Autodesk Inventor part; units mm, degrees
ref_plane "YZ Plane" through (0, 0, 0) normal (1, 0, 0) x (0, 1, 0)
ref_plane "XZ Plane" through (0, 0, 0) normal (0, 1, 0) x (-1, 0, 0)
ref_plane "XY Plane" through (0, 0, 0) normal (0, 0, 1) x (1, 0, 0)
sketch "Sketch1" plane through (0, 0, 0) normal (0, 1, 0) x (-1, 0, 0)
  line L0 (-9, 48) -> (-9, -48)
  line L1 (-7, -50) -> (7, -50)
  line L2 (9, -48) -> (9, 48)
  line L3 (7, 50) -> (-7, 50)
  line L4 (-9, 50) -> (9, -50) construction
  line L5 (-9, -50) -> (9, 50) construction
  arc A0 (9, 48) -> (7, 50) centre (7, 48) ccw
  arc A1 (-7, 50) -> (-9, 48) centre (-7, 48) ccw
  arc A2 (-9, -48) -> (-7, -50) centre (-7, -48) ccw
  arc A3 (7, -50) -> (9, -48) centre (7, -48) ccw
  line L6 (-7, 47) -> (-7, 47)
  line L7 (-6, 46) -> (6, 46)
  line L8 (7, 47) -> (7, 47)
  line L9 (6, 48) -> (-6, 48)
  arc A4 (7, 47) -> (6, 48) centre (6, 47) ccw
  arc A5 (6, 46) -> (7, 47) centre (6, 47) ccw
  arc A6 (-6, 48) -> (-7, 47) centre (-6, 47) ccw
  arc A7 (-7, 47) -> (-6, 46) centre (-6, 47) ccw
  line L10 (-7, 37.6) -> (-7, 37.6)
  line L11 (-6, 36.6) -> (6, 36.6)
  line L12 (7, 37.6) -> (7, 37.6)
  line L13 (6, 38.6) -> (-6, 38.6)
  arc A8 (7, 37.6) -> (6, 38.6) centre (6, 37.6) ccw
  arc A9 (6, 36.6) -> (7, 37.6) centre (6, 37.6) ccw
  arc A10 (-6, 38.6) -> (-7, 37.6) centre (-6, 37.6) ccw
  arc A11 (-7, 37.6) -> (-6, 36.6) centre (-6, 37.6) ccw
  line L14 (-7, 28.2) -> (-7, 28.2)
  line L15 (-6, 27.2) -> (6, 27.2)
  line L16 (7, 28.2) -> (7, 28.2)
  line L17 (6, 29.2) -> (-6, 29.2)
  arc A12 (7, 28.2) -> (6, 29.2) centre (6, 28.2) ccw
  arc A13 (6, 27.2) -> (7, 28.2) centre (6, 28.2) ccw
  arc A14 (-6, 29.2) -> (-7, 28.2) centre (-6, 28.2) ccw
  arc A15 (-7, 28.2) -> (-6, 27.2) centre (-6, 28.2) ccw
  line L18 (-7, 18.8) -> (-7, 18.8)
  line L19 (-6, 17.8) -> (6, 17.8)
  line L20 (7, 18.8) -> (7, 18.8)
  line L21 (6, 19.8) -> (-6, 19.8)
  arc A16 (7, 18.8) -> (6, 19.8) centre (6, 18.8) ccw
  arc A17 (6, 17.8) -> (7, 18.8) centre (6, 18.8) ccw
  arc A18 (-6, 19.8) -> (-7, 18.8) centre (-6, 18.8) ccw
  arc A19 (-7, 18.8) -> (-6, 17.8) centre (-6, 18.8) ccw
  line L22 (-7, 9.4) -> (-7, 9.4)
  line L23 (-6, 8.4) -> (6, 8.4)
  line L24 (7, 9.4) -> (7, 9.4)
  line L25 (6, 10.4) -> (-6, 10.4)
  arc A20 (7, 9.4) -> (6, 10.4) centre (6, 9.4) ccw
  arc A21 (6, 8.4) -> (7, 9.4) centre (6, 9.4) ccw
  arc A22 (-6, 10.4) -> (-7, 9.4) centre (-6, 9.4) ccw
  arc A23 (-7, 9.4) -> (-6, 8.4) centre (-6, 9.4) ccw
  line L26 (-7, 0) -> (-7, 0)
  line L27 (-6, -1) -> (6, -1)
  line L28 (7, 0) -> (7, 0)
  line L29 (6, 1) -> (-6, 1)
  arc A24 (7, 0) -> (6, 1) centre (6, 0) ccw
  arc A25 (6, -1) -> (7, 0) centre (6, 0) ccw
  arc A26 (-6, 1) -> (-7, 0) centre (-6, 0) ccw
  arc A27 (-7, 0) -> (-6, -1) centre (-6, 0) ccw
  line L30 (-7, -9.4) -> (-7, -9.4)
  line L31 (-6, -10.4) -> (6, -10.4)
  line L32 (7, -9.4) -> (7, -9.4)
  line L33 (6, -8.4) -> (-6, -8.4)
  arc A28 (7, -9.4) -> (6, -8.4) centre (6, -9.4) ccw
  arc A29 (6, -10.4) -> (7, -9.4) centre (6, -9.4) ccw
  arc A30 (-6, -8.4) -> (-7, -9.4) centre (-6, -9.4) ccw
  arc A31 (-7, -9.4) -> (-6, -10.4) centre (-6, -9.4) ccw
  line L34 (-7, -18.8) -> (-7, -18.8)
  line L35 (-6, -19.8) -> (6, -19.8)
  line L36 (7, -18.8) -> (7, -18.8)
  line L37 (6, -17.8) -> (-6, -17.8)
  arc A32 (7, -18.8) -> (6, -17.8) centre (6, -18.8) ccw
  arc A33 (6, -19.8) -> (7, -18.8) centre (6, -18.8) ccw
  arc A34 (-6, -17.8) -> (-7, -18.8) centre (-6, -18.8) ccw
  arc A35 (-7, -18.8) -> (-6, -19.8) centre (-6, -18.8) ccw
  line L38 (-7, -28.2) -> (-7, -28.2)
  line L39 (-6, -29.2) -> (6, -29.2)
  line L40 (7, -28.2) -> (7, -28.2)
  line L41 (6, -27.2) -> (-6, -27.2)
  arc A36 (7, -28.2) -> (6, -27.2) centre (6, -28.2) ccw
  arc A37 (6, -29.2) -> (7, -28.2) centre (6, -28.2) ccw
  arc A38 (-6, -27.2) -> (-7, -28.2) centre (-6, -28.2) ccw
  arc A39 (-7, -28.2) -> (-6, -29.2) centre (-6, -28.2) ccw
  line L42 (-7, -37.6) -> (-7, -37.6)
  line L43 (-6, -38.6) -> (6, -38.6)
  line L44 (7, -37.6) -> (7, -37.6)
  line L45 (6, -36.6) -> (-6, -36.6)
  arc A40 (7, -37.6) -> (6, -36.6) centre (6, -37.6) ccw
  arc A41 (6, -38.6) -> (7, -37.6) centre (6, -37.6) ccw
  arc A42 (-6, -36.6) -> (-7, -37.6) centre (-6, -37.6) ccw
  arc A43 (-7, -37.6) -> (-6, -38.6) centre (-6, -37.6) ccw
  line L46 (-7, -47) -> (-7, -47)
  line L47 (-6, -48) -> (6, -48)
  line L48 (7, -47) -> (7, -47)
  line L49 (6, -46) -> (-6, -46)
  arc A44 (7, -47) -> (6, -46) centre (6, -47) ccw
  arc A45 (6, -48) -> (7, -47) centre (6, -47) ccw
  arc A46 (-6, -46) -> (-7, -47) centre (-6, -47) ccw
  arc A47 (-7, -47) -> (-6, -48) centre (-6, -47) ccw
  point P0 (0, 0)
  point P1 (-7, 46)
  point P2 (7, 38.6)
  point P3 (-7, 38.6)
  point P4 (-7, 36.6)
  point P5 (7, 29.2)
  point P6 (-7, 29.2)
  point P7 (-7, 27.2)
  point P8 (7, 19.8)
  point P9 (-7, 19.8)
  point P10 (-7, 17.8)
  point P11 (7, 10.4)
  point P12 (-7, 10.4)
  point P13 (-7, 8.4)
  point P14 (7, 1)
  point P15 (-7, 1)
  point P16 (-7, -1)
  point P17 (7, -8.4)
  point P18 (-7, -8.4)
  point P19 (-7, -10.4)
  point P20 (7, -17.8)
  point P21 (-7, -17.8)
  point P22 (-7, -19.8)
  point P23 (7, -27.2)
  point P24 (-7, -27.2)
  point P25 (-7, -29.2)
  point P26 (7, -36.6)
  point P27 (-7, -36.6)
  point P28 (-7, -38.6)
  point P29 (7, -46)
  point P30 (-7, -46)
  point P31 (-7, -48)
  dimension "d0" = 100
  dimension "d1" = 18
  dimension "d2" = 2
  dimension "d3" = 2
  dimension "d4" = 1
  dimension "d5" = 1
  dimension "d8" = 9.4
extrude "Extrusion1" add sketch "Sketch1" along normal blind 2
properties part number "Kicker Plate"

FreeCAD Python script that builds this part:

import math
import FreeCAD as App
import Part
import Sketcher

doc = App.newDocument("Part")
body = doc.addObject("PartDesign::Body", "Body")

# Sketch on XZ plane
sketch1 = body.newObject("Sketcher::SketchObject", "Sketch")
sketch1.AttachmentSupport = (doc.getObject("XZ_Plane"), [""])
sketch1.MapMode = "FlatFace"
sketch1.addGeometry(Part.ArcOfCircle(Part.Circle(App.Vector(7, 48, 0), App.Vector(0, 0, 1), 2), math.radians(0), math.radians(90)), False)
sketch1.addGeometry(Part.LineSegment(App.Vector(9, 48, 0), App.Vector(9, -48, 0)), False)
sketch1.addGeometry(Part.ArcOfCircle(Part.Circle(App.Vector(7, -48, 0), App.Vector(0, 0, 1), 2), math.radians(-90), math.radians(0)), False)
sketch1.addGeometry(Part.LineSegment(App.Vector(7, -50, 0), App.Vector(-7, -50, 0)), False)
sketch1.addGeometry(Part.ArcOfCircle(Part.Circle(App.Vector(-7, -48, 0), App.Vector(0, 0, 1), 2), math.radians(180), math.radians(270)), False)
sketch1.addGeometry(Part.LineSegment(App.Vector(-9, -48, 0), App.Vector(-9, 48, 0)), False)
sketch1.addGeometry(Part.ArcOfCircle(Part.Circle(App.Vector(-7, 48, 0), App.Vector(0, 0, 1), 2), math.radians(90), math.radians(180)), False)
sketch1.addGeometry(Part.LineSegment(App.Vector(-7, 50, 0), App.Vector(7, 50, 0)), False)
sketch1.addGeometry(Part.LineSegment(App.Vector(-6, -48, 0), App.Vector(6, -48, 0)), False)
sketch1.addGeometry(Part.ArcOfCircle(Part.Circle(App.Vector(6, -47, 0), App.Vector(0, 0, 1), 1), math.radians(-90), math.radians(90)), False)
sketch1.addGeometry(Part.LineSegment(App.Vector(6, -46, 0), App.Vector(-6, -46, 0)), False)
sketch1.addGeometry(Part.ArcOfCircle(Part.Circle(App.Vector(-6, -47, 0), App.Vector(0, 0, 1), 1), math.radians(90), math.radians(270)), False)
sketch1.addGeometry(Part.LineSegment(App.Vector(-6, -38.6, 0), App.Vector(6, -38.6, 0)), False)
sketch1.addGeometry(Part.ArcOfCircle(Part.Circle(App.Vector(6, -37.6, 0), App.Vector(0, 0, 1), 1), math.radians(-90), math.radians(90)), False)
sketch1.addGeometry(Part.LineSegment(App.Vector(6, -36.6, 0), App.Vector(-6, -36.6, 0)), False)
sketch1.addGeometry(Part.ArcOfCircle(Part.Circle(App.Vector(-6, -37.6, 0), App.Vector(0, 0, 1), 1), math.radians(90), math.radians(270)), False)
sketch1.addGeometry(Part.LineSegment(App.Vector(-6, -29.2, 0), App.Vector(6, -29.2, 0)), False)
sketch1.addGeometry(Part.ArcOfCircle(Part.Circle(App.Vector(6, -28.2, 0), App.Vector(0, 0, 1), 1), math.radians(-90), math.radians(90)), False)
sketch1.addGeometry(Part.LineSegment(App.Vector(6, -27.2, 0), App.Vector(-6, -27.2, 0)), False)
sketch1.addGeometry(Part.ArcOfCircle(Part.Circle(App.Vector(-6, -28.2, 0), App.Vector(0, 0, 1), 1), math.radians(90), math.radians(270)), False)
sketch1.addGeometry(Part.LineSegment(App.Vector(-6, -19.8, 0), App.Vector(6, -19.8, 0)), False)
sketch1.addGeometry(Part.ArcOfCircle(Part.Circle(App.Vector(6, -18.8, 0), App.Vector(0, 0, 1), 1), math.radians(-90), math.radians(90)), False)
sketch1.addGeometry(Part.LineSegment(App.Vector(6, -17.8, 0), App.Vector(-6, -17.8, 0)), False)
sketch1.addGeometry(Part.ArcOfCircle(Part.Circle(App.Vector(-6, -18.8, 0), App.Vector(0, 0, 1), 1), math.radians(90), math.radians(270)), False)
sketch1.addGeometry(Part.LineSegment(App.Vector(-6, -10.4, 0), App.Vector(6, -10.4, 0)), False)
sketch1.addGeometry(Part.ArcOfCircle(Part.Circle(App.Vector(6, -9.4, 0), App.Vector(0, 0, 1), 1), math.radians(-90), math.radians(90)), False)
sketch1.addGeometry(Part.LineSegment(App.Vector(6, -8.4, 0), App.Vector(-6, -8.4, 0)), False)
sketch1.addGeometry(Part.ArcOfCircle(Part.Circle(App.Vector(-6, -9.4, 0), App.Vector(0, 0, 1), 1), math.radians(90), math.radians(270)), False)
sketch1.addGeometry(Part.LineSegment(App.Vector(-6, -1, 0), App.Vector(6, -1, 0)), False)
sketch1.addGeometry(Part.ArcOfCircle(Part.Circle(App.Vector(6, 0, 0), App.Vector(0, 0, 1), 1), math.radians(-90), math.radians(90)), False)
sketch1.addGeometry(Part.LineSegment(App.Vector(6, 1, 0), App.Vector(-6, 1, 0)), False)
sketch1.addGeometry(Part.ArcOfCircle(Part.Circle(App.Vector(-6, 0, 0), App.Vector(0, 0, 1), 1), math.radians(90), math.radians(270)), False)
sketch1.addGeometry(Part.LineSegment(App.Vector(-6, 8.4, 0), App.Vector(6, 8.4, 0)), False)
sketch1.addGeometry(Part.ArcOfCircle(Part.Circle(App.Vector(6, 9.4, 0), App.Vector(0, 0, 1), 1), math.radians(-90), math.radians(90)), False)
sketch1.addGeometry(Part.LineSegment(App.Vector(6, 10.4, 0), App.Vector(-6, 10.4, 0)), False)
sketch1.addGeometry(Part.ArcOfCircle(Part.Circle(App.Vector(-6, 9.4, 0), App.Vector(0, 0, 1), 1), math.radians(90), math.radians(270)), False)
sketch1.addGeometry(Part.LineSegment(App.Vector(-6, 17.8, 0), App.Vector(6, 17.8, 0)), False)
sketch1.addGeometry(Part.ArcOfCircle(Part.Circle(App.Vector(6, 18.8, 0), App.Vector(0, 0, 1), 1), math.radians(-90), math.radians(90)), False)
sketch1.addGeometry(Part.LineSegment(App.Vector(6, 19.8, 0), App.Vector(-6, 19.8, 0)), False)
sketch1.addGeometry(Part.ArcOfCircle(Part.Circle(App.Vector(-6, 18.8, 0), App.Vector(0, 0, 1), 1), math.radians(90), math.radians(270)), False)
sketch1.addGeometry(Part.LineSegment(App.Vector(-6, 27.2, 0), App.Vector(6, 27.2, 0)), False)
sketch1.addGeometry(Part.ArcOfCircle(Part.Circle(App.Vector(6, 28.2, 0), App.Vector(0, 0, 1), 1), math.radians(-90), math.radians(90)), False)
sketch1.addGeometry(Part.LineSegment(App.Vector(6, 29.2, 0), App.Vector(-6, 29.2, 0)), False)
sketch1.addGeometry(Part.ArcOfCircle(Part.Circle(App.Vector(-6, 28.2, 0), App.Vector(0, 0, 1), 1), math.radians(90), math.radians(270)), False)
sketch1.addGeometry(Part.LineSegment(App.Vector(-6, 36.6, 0), App.Vector(6, 36.6, 0)), False)
sketch1.addGeometry(Part.ArcOfCircle(Part.Circle(App.Vector(6, 37.6, 0), App.Vector(0, 0, 1), 1), math.radians(-90), math.radians(90)), False)
sketch1.addGeometry(Part.LineSegment(App.Vector(6, 38.6, 0), App.Vector(-6, 38.6, 0)), False)
sketch1.addGeometry(Part.ArcOfCircle(Part.Circle(App.Vector(-6, 37.6, 0), App.Vector(0, 0, 1), 1), math.radians(90), math.radians(270)), False)
sketch1.addGeometry(Part.LineSegment(App.Vector(-6, 46, 0), App.Vector(6, 46, 0)), False)
sketch1.addGeometry(Part.ArcOfCircle(Part.Circle(App.Vector(6, 47, 0), App.Vector(0, 0, 1), 1), math.radians(-90), math.radians(90)), False)
sketch1.addGeometry(Part.LineSegment(App.Vector(6, 48, 0), App.Vector(-6, 48, 0)), False)
sketch1.addGeometry(Part.ArcOfCircle(Part.Circle(App.Vector(-6, 47, 0), App.Vector(0, 0, 1), 1), math.radians(90), math.radians(270)), False)
sketch1.addConstraint(Sketcher.Constraint("Tangent", 0, 1, 1, 1))
sketch1.addConstraint(Sketcher.Constraint("Tangent", 1, 2, 2, 2))
sketch1.addConstraint(Sketcher.Constraint("Tangent", 2, 1, 3, 1))
sketch1.addConstraint(Sketcher.Constraint("Tangent", 3, 2, 4, 2))
sketch1.addConstraint(Sketcher.Constraint("Tangent", 4, 1, 5, 1))
sketch1.addConstraint(Sketcher.Constraint("Tangent", 5, 2, 6, 2))
sketch1.addConstraint(Sketcher.Constraint("Tangent", 6, 1, 7, 1))
sketch1.addConstraint(Sketcher.Constraint("Tangent", 7, 2, 0, 2))
sketch1.addConstraint(Sketcher.Constraint("Tangent", 8, 2, 9, 1))
sketch1.addConstraint(Sketcher.Constraint("Tangent", 9, 2, 10, 1))
sketch1.addConstraint(Sketcher.Constraint("Tangent", 10, 2, 11, 1))
sketch1.addConstraint(Sketcher.Constraint("Tangent", 11, 2, 8, 1))
sketch1.addConstraint(Sketcher.Constraint("Tangent", 12, 2, 13, 1))
sketch1.addConstraint(Sketcher.Constraint("Tangent", 13, 2, 14, 1))
sketch1.addConstraint(Sketcher.Constraint("Tangent", 14, 2, 15, 1))
sketch1.addConstraint(Sketcher.Constraint("Tangent", 15, 2, 12, 1))
sketch1.addConstraint(Sketcher.Constraint("Tangent", 16, 2, 17, 1))
sketch1.addConstraint(Sketcher.Constraint("Tangent", 17, 2, 18, 1))
sketch1.addConstraint(Sketcher.Constraint("Tangent", 18, 2, 19, 1))
sketch1.addConstraint(Sketcher.Constraint("Tangent", 19, 2, 16, 1))
sketch1.addConstraint(Sketcher.Constraint("Tangent", 20, 2, 21, 1))
sketch1.addConstraint(Sketcher.Constraint("Tangent", 21, 2, 22, 1))
sketch1.addConstraint(Sketcher.Constraint("Tangent", 22, 2, 23, 1))
sketch1.addConstraint(Sketcher.Constraint("Tangent", 23, 2, 20, 1))
sketch1.addConstraint(Sketcher.Constraint("Tangent", 24, 2, 25, 1))
sketch1.addConstraint(Sketcher.Constraint("Tangent", 25, 2, 26, 1))
sketch1.addConstraint(Sketcher.Constraint("Tangent", 26, 2, 27, 1))
sketch1.addConstraint(Sketcher.Constraint("Tangent", 27, 2, 24, 1))
sketch1.addConstraint(Sketcher.Constraint("Tangent", 28, 2, 29, 1))
sketch1.addConstraint(Sketcher.Constraint("Tangent", 29, 2, 30, 1))
sketch1.addConstraint(Sketcher.Constraint("Tangent", 30, 2, 31, 1))
sketch1.addConstraint(Sketcher.Constraint("Tangent", 31, 2, 28, 1))
sketch1.addConstraint(Sketcher.Constraint("Tangent", 32, 2, 33, 1))
sketch1.addConstraint(Sketcher.Constraint("Tangent", 33, 2, 34, 1))
sketch1.addConstraint(Sketcher.Constraint("Tangent", 34, 2, 35, 1))
sketch1.addConstraint(Sketcher.Constraint("Tangent", 35, 2, 32, 1))
sketch1.addConstraint(Sketcher.Constraint("Tangent", 36, 2, 37, 1))
sketch1.addConstraint(Sketcher.Constraint("Tangent", 37, 2, 38, 1))
sketch1.addConstraint(Sketcher.Constraint("Tangent", 38, 2, 39, 1))
sketch1.addConstraint(Sketcher.Constraint("Tangent", 39, 2, 36, 1))
sketch1.addConstraint(Sketcher.Constraint("Tangent", 40, 2, 41, 1))
sketch1.addConstraint(Sketcher.Constraint("Tangent", 41, 2, 42, 1))
sketch1.addConstraint(Sketcher.Constraint("Tangent", 42, 2, 43, 1))
sketch1.addConstraint(Sketcher.Constraint("Tangent", 43, 2, 40, 1))
sketch1.addConstraint(Sketcher.Constraint("Tangent", 44, 2, 45, 1))
sketch1.addConstraint(Sketcher.Constraint("Tangent", 45, 2, 46, 1))
sketch1.addConstraint(Sketcher.Constraint("Tangent", 46, 2, 47, 1))
sketch1.addConstraint(Sketcher.Constraint("Tangent", 47, 2, 44, 1))
sketch1.addConstraint(Sketcher.Constraint("Tangent", 48, 2, 49, 1))
sketch1.addConstraint(Sketcher.Constraint("Tangent", 49, 2, 50, 1))
sketch1.addConstraint(Sketcher.Constraint("Tangent", 50, 2, 51, 1))
sketch1.addConstraint(Sketcher.Constraint("Tangent", 51, 2, 48, 1))
sketch1.addConstraint(Sketcher.Constraint("Vertical", 1))
sketch1.addConstraint(Sketcher.Constraint("Horizontal", 3))
sketch1.addConstraint(Sketcher.Constraint("Vertical", 5))
sketch1.addConstraint(Sketcher.Constraint("Horizontal", 7))
sketch1.addConstraint(Sketcher.Constraint("Horizontal", 8))
sketch1.addConstraint(Sketcher.Constraint("Horizontal", 10))
sketch1.addConstraint(Sketcher.Constraint("Horizontal", 12))
sketch1.addConstraint(Sketcher.Constraint("Horizontal", 14))
sketch1.addConstraint(Sketcher.Constraint("Horizontal", 16))
sketch1.addConstraint(Sketcher.Constraint("Horizontal", 18))
sketch1.addConstraint(Sketcher.Constraint("Horizontal", 20))
sketch1.addConstraint(Sketcher.Constraint("Horizontal", 22))
sketch1.addConstraint(Sketcher.Constraint("Horizontal", 24))
sketch1.addConstraint(Sketcher.Constraint("Horizontal", 26))
sketch1.addConstraint(Sketcher.Constraint("Horizontal", 28))
sketch1.addConstraint(Sketcher.Constraint("Horizontal", 30))
sketch1.addConstraint(Sketcher.Constraint("Horizontal", 32))
sketch1.addConstraint(Sketcher.Constraint("Horizontal", 34))
sketch1.addConstraint(Sketcher.Constraint("Horizontal", 36))
sketch1.addConstraint(Sketcher.Constraint("Horizontal", 38))
sketch1.addConstraint(Sketcher.Constraint("Horizontal", 40))
sketch1.addConstraint(Sketcher.Constraint("Horizontal", 42))
sketch1.addConstraint(Sketcher.Constraint("Horizontal", 44))
sketch1.addConstraint(Sketcher.Constraint("Horizontal", 46))
sketch1.addConstraint(Sketcher.Constraint("Horizontal", 48))
sketch1.addConstraint(Sketcher.Constraint("Horizontal", 50))
sketch1.addConstraint(Sketcher.Constraint("Equal", 0, 2))
sketch1.addConstraint(Sketcher.Constraint("Equal", 2, 4))
sketch1.addConstraint(Sketcher.Constraint("Equal", 4, 6))
sketch1.addConstraint(Sketcher.Constraint("Equal", 11, 13))
sketch1.addConstraint(Sketcher.Constraint("Equal", 15, 17))
sketch1.addConstraint(Sketcher.Constraint("Equal", 19, 21))
sketch1.addConstraint(Sketcher.Constraint("Equal", 23, 25))
sketch1.addConstraint(Sketcher.Constraint("Equal", 27, 29))
sketch1.addConstraint(Sketcher.Constraint("Equal", 31, 33))
sketch1.addConstraint(Sketcher.Constraint("Equal", 35, 37))
sketch1.addConstraint(Sketcher.Constraint("Equal", 39, 41))
sketch1.addConstraint(Sketcher.Constraint("Equal", 43, 45))
sketch1.addConstraint(Sketcher.Constraint("Equal", 47, 49))
sketch1.addConstraint(Sketcher.Constraint("Symmetric", 0, 3, 4, 3, -1, 1))
sketch1.addConstraint(Sketcher.Constraint("Symmetric", 29, 3, 31, 3, -1, 1))
sketch1.addConstraint(Sketcher.Constraint("Symmetric", 27, 3, 33, 3, -1, 1))
sketch1.addConstraint(Sketcher.Constraint("Symmetric", 23, 3, 37, 3, -1, 1))
sketch1.addConstraint(Sketcher.Constraint("Symmetric", 19, 3, 41, 3, -1, 1))
sketch1.addConstraint(Sketcher.Constraint("Symmetric", 15, 3, 45, 3, -1, 1))
sketch1.addConstraint(Sketcher.Constraint("Symmetric", 11, 3, 49, 3, -1, 1))
sketch1.addConstraint(Sketcher.Constraint("Horizontal", 4, 1, 8, 2))
sketch1.addConstraint(Sketcher.Constraint("Vertical", 9, 3, 13, 3))
sketch1.addConstraint(Sketcher.Constraint("Vertical", 11, 3, 15, 3))
sketch1.addConstraint(Sketcher.Constraint("Vertical", 13, 3, 17, 3))
sketch1.addConstraint(Sketcher.Constraint("Vertical", 15, 3, 19, 3))
sketch1.addConstraint(Sketcher.Constraint("Vertical", 17, 3, 21, 3))
sketch1.addConstraint(Sketcher.Constraint("Vertical", 19, 3, 23, 3))
sketch1.addConstraint(Sketcher.Constraint("Vertical", 21, 3, 25, 3))
sketch1.addConstraint(Sketcher.Constraint("Vertical", 23, 3, 27, 3))
sketch1.addConstraint(Sketcher.Constraint("Vertical", 25, 3, 29, 3))
sketch1.addConstraint(Sketcher.Constraint("Vertical", 27, 3, 31, 3))
sketch1.addConstraint(Sketcher.Constraint("Vertical", 31, 3, 35, 3))
sketch1.addConstraint(Sketcher.Constraint("Vertical", 35, 3, 39, 3))
sketch1.addConstraint(Sketcher.Constraint("Vertical", 39, 3, 43, 3))
sketch1.addConstraint(Sketcher.Constraint("Vertical", 43, 3, 47, 3))
sketch1.addConstraint(Sketcher.Constraint("Vertical", 47, 3, 51, 3))
sketch1.addConstraint(Sketcher.Constraint("Radius", 0, 2.0))
sketch1.addConstraint(Sketcher.Constraint("Radius", 9, 1.0))
sketch1.addConstraint(Sketcher.Constraint("DistanceY", 25, 3, -1, 1, 9.4))
sketch1.addConstraint(Sketcher.Constraint("DistanceX", 3, 2, 3, 1, 14.0))
sketch1.addConstraint(Sketcher.Constraint("DistanceX", 8, 1, 8, 2, 12.0))
sketch1.addConstraint(Sketcher.Constraint("DistanceY", 1, 2, 1, 1, 96.0))
sketch1.addConstraint(Sketcher.Constraint("DistanceY", 13, 3, -1, 1, 37.6))
sketch1.addConstraint(Sketcher.Constraint("DistanceY", 17, 3, -1, 1, 28.2))
sketch1.addConstraint(Sketcher.Constraint("DistanceY", 21, 3, -1, 1, 18.8))
pad1 = body.newObject("PartDesign::Pad", "Pad")
pad1.Profile = sketch1
pad1.Length = 2
pad1.Reversed = True

doc.recompute()
